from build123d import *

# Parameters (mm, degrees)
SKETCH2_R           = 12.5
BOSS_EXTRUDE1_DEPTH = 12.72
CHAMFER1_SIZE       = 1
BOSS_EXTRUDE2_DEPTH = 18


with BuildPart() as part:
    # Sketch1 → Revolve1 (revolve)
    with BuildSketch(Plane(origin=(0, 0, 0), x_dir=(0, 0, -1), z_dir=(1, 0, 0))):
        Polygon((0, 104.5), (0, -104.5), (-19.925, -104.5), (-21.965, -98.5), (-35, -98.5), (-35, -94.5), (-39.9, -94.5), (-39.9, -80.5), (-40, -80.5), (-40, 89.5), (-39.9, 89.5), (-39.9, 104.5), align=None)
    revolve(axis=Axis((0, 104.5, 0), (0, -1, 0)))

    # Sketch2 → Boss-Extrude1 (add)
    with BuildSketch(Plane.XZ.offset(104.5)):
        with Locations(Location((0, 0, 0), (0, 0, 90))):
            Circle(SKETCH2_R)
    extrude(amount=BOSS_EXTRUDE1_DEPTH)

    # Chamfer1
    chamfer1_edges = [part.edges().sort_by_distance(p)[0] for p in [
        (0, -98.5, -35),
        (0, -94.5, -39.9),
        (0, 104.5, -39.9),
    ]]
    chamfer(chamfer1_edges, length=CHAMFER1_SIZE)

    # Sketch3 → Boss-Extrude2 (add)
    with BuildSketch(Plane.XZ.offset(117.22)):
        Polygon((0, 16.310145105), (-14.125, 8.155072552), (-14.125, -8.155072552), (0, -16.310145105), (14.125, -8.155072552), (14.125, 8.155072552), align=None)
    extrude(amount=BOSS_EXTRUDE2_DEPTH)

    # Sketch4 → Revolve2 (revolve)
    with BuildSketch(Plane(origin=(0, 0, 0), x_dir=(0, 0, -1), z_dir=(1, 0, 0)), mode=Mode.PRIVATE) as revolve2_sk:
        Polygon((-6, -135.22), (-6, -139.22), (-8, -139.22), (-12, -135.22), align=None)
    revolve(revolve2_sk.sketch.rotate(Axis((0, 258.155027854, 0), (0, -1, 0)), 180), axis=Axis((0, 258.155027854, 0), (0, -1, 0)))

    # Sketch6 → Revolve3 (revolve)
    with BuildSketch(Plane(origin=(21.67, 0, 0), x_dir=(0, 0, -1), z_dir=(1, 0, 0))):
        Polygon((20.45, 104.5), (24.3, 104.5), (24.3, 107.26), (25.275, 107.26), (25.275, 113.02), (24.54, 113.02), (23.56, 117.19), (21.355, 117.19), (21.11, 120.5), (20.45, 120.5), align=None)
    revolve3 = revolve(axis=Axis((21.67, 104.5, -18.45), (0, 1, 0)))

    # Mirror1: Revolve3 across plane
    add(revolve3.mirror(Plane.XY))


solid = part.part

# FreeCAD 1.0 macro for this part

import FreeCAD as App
import Part
import Sketcher
Q = App.Units.Quantity


def edges_at(feature, points):
    """Names of the edges that pass closest to the given points."""
    edges = feature.Shape.Edges
    near = lambda p: min(range(len(edges)), key=lambda i: edges[i].distToShape(Part.Vertex(*p))[0])
    return sorted({f"Edge{near(p) + 1}" for p in points})


def add_polygon(sketch, points):
    """Adds a closed chain of lines whose ends are joined by coincident constraints."""
    first, n = sketch.GeometryCount, len(points)
    for a, b in zip(points, points[1:] + points[:1]):
        sketch.addGeometry(Part.LineSegment(App.Vector(*a, 0), App.Vector(*b, 0)), False)
    for i in range(n):
        sketch.addConstraint(Sketcher.Constraint("Coincident", first + i, 2, first + (i + 1) % n, 1))

doc = App.newDocument("Part")
body = doc.addObject("PartDesign::Body", "Body")

# Sketch on YZ plane
sketch1 = body.newObject("Sketcher::SketchObject", "Sketch")
sketch1.AttachmentSupport = (doc.getObject("YZ_Plane"), [""])
sketch1.MapMode = "FlatFace"
add_polygon(sketch1, [(-104.5, 0), (104.5, 0), (104.5, 39.9), (89.5, 39.9), (89.5, 40), (-80.5, 40), (-80.5, 39.9), (-94.5, 39.9), (-94.5, 35), (-98.5, 35), (-98.5, 21.965), (-104.5, 19.925)])  # lines 0-11
sketch1.addConstraint(Sketcher.Constraint("Horizontal", 0))
sketch1.addConstraint(Sketcher.Constraint("Vertical", 1))
sketch1.addConstraint(Sketcher.Constraint("Horizontal", 2))
sketch1.addConstraint(Sketcher.Constraint("Vertical", 3))
sketch1.addConstraint(Sketcher.Constraint("Horizontal", 4))
sketch1.addConstraint(Sketcher.Constraint("Vertical", 5))
sketch1.addConstraint(Sketcher.Constraint("Horizontal", 6))
sketch1.addConstraint(Sketcher.Constraint("Vertical", 7))
sketch1.addConstraint(Sketcher.Constraint("Horizontal", 8))
sketch1.addConstraint(Sketcher.Constraint("Vertical", 9))
sketch1.addConstraint(Sketcher.Constraint("Vertical", 11))
sketch1.addConstraint(Sketcher.Constraint("Symmetric", 0, 2, 11, 2, -1, 1))
sketch1.addConstraint(Sketcher.Constraint("Horizontal", 2, 2, 5, 2))
sketch1.addConstraint(Sketcher.Constraint("DistanceX", 0, 1, 0, 2, Q("209 mm")))
sketch1.addConstraint(Sketcher.Constraint("DistanceX", 2, 2, 2, 1, Q("15 mm")))
sketch1.addConstraint(Sketcher.Constraint("DistanceX", 4, 2, 4, 1, Q("170 mm")))
sketch1.addConstraint(Sketcher.Constraint("DistanceX", 6, 2, 6, 1, Q("14 mm")))
sketch1.addConstraint(Sketcher.Constraint("DistanceX", 8, 2, 8, 1, Q("4 mm")))
sketch1.addConstraint(Sketcher.Constraint("DistanceY", 1, 1, 1, 2, Q("39.9 mm")))
sketch1.addConstraint(Sketcher.Constraint("DistanceY", 3, 1, 3, 2, Q("0.1 mm")))
sketch1.addConstraint(Sketcher.Constraint("DistanceY", 7, 2, 7, 1, Q("4.9 mm")))
sketch1.addConstraint(Sketcher.Constraint("DistanceY", 9, 2, 9, 1, Q("13.035 mm")))
sketch1.addConstraint(Sketcher.Constraint("DistanceY", 11, 2, 11, 1, Q("19.925 mm")))
revolution = body.newObject("PartDesign::Revolution", "Revolution")
revolution.Profile = sketch1
revolution.ReferenceAxis = (sketch1, ["H_Axis"])
revolution.Angle = 360

# Sketch on XZ plane
sketch2 = body.newObject("Sketcher::SketchObject", "Sketch001")
sketch2.AttachmentSupport = (doc.getObject("XZ_Plane"), [""])
sketch2.MapMode = "FlatFace"
sketch2.AttachmentOffset = App.Placement(App.Vector(0, 0, 104.5), App.Rotation())
sketch2.addGeometry(Part.Circle(App.Vector(0, 0, 0), App.Vector(0, 0, 1), 12.5), False)
sketch2.addConstraint(Sketcher.Constraint("Coincident", 0, 3, -1, 1))
sketch2.addConstraint(Sketcher.Constraint("Diameter", 0, Q("25 mm")))
pad1 = body.newObject("PartDesign::Pad", "Pad")
pad1.Profile = sketch2
pad1.Length = 12.72
doc.recompute()

chamfer = body.newObject("PartDesign::Chamfer", "Chamfer")
chamfer.Base = (pad1, edges_at(pad1, [(0, -98.5, -35), (0, -94.5, -39.9), (0, 104.5, -39.9)]))
chamfer.Size = 1

# Sketch on XZ plane
sketch3 = body.newObject("Sketcher::SketchObject", "Sketch002")
sketch3.AttachmentSupport = (doc.getObject("XZ_Plane"), [""])
sketch3.MapMode = "FlatFace"
sketch3.AttachmentOffset = App.Placement(App.Vector(0, 0, 117.22), App.Rotation())
add_polygon(sketch3, [(0, 16.310145), (-14.125, 8.155073), (-14.125, -8.155073), (0, -16.310145), (14.125, -8.155073), (14.125, 8.155073)])  # lines 0-5
sketch3.addConstraint(Sketcher.Constraint("Vertical", 1))
sketch3.addConstraint(Sketcher.Constraint("Vertical", 4))
sketch3.addConstraint(Sketcher.Constraint("Symmetric", 0, 2, 3, 2, -1, 1))
sketch3.addConstraint(Sketcher.Constraint("Symmetric", 2, 2, 5, 2, -1, 1))
sketch3.addConstraint(Sketcher.Constraint("PointOnObject", 2, 2, -2))
sketch3.addConstraint(Sketcher.Constraint("Parallel", 2, 5))
sketch3.addConstraint(Sketcher.Constraint("Horizontal", 1, 2, 3, 2))
sketch3.addConstraint(Sketcher.Constraint("Angle", 0, Q("-150 deg")))
sketch3.addConstraint(Sketcher.Constraint("DistanceX", 1, 2, 3, 2, Q("28.25 mm")))
sketch3.addConstraint(Sketcher.Constraint("DistanceY", 1, 2, 1, 1, Q("16.310145 mm")))
pad2 = body.newObject("PartDesign::Pad", "Pad001")
pad2.Profile = sketch3
pad2.Length = 18

# Sketch on YZ plane
sketch4 = body.newObject("Sketcher::SketchObject", "Sketch003")
sketch4.AttachmentSupport = (doc.getObject("YZ_Plane"), [""])
sketch4.MapMode = "FlatFace"
add_polygon(sketch4, [(-139.22, 6), (-135.22, 6), (-135.22, 12), (-139.22, 8)])  # lines 0-3
sketch4.addConstraint(Sketcher.Constraint("Horizontal", 0))
sketch4.addConstraint(Sketcher.Constraint("Vertical", 1))
sketch4.addConstraint(Sketcher.Constraint("Vertical", 3))
sketch4.addConstraint(Sketcher.Constraint("DistanceX", 0, 1, 0, 2, Q("4 mm")))
sketch4.addConstraint(Sketcher.Constraint("DistanceY", 1, 1, 1, 2, Q("6 mm")))
sketch4.addConstraint(Sketcher.Constraint("DistanceY", 3, 2, 3, 1, Q("2 mm")))
sketch4.addConstraint(Sketcher.Constraint("DistanceY", -1, 1, 0, 2, Q("6 mm")))
sketch4.addConstraint(Sketcher.Constraint("DistanceX", 0, 2, -1, 1, Q("135.22 mm")))
revolution2 = body.newObject("PartDesign::Revolution", "Revolution001")
revolution2.Profile = sketch4
revolution2.ReferenceAxis = (sketch4, ["H_Axis"])
revolution2.Angle = 360

# Sketch on YZ plane
sketch5 = body.newObject("Sketcher::SketchObject", "Sketch004")
sketch5.AttachmentSupport = (doc.getObject("YZ_Plane"), [""])
sketch5.MapMode = "FlatFace"
sketch5.AttachmentOffset = App.Placement(App.Vector(0, 0, 21.67), App.Rotation())
add_polygon(sketch5, [(104.5, -20.45), (104.5, -24.3), (107.26, -24.3), (107.26, -25.275), (113.02, -25.275), (113.02, -24.54), (117.19, -23.56), (117.19, -21.355), (120.5, -21.11), (120.5, -20.45)])  # lines 0-9
sketch5.addGeometry(Part.LineSegment(App.Vector(104.5, -18.45, 0), App.Vector(120.5, -18.45, 0)), True)  # axis
sketch5.addConstraint(Sketcher.Constraint("Vertical", 0))
sketch5.addConstraint(Sketcher.Constraint("Horizontal", 1))
sketch5.addConstraint(Sketcher.Constraint("Vertical", 2))
sketch5.addConstraint(Sketcher.Constraint("Horizontal", 3))
sketch5.addConstraint(Sketcher.Constraint("Vertical", 4))
sketch5.addConstraint(Sketcher.Constraint("Vertical", 6))
sketch5.addConstraint(Sketcher.Constraint("Vertical", 8))
sketch5.addConstraint(Sketcher.Constraint("Horizontal", 9))
sketch5.addConstraint(Sketcher.Constraint("Horizontal", 10))
sketch5.addConstraint(Sketcher.Constraint("Vertical", 9, 2, 10, 1))
sketch5.addConstraint(Sketcher.Constraint("Vertical", 8, 2, 10, 2))
sketch5.addConstraint(Sketcher.Constraint("DistanceX", 9, 2, 9, 1, Q("16 mm")))
sketch5.addConstraint(Sketcher.Constraint("DistanceY", 9, 2, 10, 1, Q("2 mm")))
sketch5.addConstraint(Sketcher.Constraint("DistanceX", 1, 1, 1, 2, Q("2.76 mm")))
sketch5.addConstraint(Sketcher.Constraint("DistanceX", 3, 1, 3, 2, Q("5.76 mm")))
sketch5.addConstraint(Sketcher.Constraint("DistanceY", 0, 2, 0, 1, Q("3.85 mm")))
sketch5.addConstraint(Sketcher.Constraint("DistanceY", 8, 1, 8, 2, Q("0.66 mm")))
sketch5.addConstraint(Sketcher.Constraint("DistanceX", -1, 1, 0, 2, Q("104.5 mm")))
sketch5.addConstraint(Sketcher.Constraint("DistanceY", 0, 2, -1, 1, Q("24.3 mm")))
sketch5.addConstraint(Sketcher.Constraint("DistanceY", 2, 2, 2, 1, Q("0.975 mm")))
sketch5.addConstraint(Sketcher.Constraint("DistanceY", 4, 1, 4, 2, Q("0.735 mm")))
sketch5.addConstraint(Sketcher.Constraint("DistanceY", 6, 1, 6, 2, Q("2.205 mm")))
sketch5.addConstraint(Sketcher.Constraint("DistanceX", -1, 1, 5, 2, Q("117.19 mm")))
sketch5.addConstraint(Sketcher.Constraint("DistanceY", 5, 2, -1, 1, Q("23.56 mm")))
revolution3 = body.newObject("PartDesign::Revolution", "Revolution002")
revolution3.Profile = sketch5
revolution3.ReferenceAxis = (sketch5, ["Axis0"])
revolution3.Angle = 360
doc.recompute()

mirrored = body.newObject("PartDesign::Mirrored", "Mirrored")
mirrored.Originals = [revolution3]
mirrored.MirrorPlane = (doc.getObject("XY_Plane"), [""])
body.Tip = mirrored

doc.recompute()
